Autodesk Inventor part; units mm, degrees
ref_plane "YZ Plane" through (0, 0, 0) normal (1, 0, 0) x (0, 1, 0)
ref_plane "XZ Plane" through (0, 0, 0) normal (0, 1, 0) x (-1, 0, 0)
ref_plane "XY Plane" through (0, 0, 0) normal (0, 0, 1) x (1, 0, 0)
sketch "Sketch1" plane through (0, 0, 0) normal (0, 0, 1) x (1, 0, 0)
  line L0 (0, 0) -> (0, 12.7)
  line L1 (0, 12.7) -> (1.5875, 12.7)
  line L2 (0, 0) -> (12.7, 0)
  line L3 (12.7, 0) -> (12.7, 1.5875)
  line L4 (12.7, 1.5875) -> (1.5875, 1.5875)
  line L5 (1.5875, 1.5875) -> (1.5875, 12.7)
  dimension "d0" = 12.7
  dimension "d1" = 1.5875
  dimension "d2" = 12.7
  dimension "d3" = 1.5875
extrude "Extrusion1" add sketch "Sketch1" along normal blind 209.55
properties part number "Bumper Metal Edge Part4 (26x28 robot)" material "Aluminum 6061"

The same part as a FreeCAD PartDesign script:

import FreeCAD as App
import Part
import Sketcher
from FreeCAD import Vector
Q = App.Units.Quantity

doc = App.newDocument("Part")
params = doc.addObject("Spreadsheet::Sheet", "Params")
for row, (alias, value) in enumerate([
    ("sketch1_width", "0.5 in"),
    ("sketch1_width2", "0.0625 in"),
    ("pad1_length", "8.25 in"),
], start=1):
    params.set(f"A{row}", alias)
    params.set(f"B{row}", "=" + value)
    params.setAlias(f"B{row}", alias)

body = doc.addObject("PartDesign::Body", "Body")

# Sketch on XY plane
sketch1 = body.newObject("Sketcher::SketchObject", "Sketch")
sketch1.AttachmentSupport = (doc.getObject("XY_Plane"), [""])
sketch1.MapMode = "FlatFace"
sketch1.addGeometry([
    Part.LineSegment(Vector(0, 12.7, 0), Vector(0, 0, 0)),  # 0
    Part.LineSegment(Vector(0, 0, 0), Vector(12.7, 0, 0)),  # 1
    Part.LineSegment(Vector(12.7, 0, 0), Vector(12.7, 1.6, 0)),  # 2
    Part.LineSegment(Vector(12.7, 1.6, 0), Vector(1.6, 1.6, 0)),  # 3
    Part.LineSegment(Vector(1.6, 1.6, 0), Vector(1.6, 12.7, 0)),  # 4
    Part.LineSegment(Vector(1.6, 12.7, 0), Vector(0, 12.7, 0)),  # 5
], False)
sketch1.addConstraint([
    Sketcher.Constraint("Coincident", 0, 2, 1, 1),
    Sketcher.Constraint("Coincident", 1, 2, 2, 1),
    Sketcher.Constraint("Coincident", 2, 2, 3, 1),
    Sketcher.Constraint("Coincident", 3, 2, 4, 1),
    Sketcher.Constraint("Coincident", 4, 2, 5, 1),
    Sketcher.Constraint("Coincident", 5, 2, 0, 1),
    Sketcher.Constraint("Vertical", 0),
    Sketcher.Constraint("Horizontal", 1),
    Sketcher.Constraint("Vertical", 2),
    Sketcher.Constraint("Horizontal", 3),
    Sketcher.Constraint("Vertical", 4),
    Sketcher.Constraint("Horizontal", 5),
    Sketcher.Constraint("Coincident", 0, 2, -1, 1),
    Sketcher.Constraint("Equal", 1, 0),
    Sketcher.Constraint("Equal", 5, 2),
    Sketcher.Constraint("DistanceX", 1, 1, 1, 2, Q("0.5 in")),
    Sketcher.Constraint("DistanceX", 5, 2, 5, 1, Q("0.0625 in")),
])
sketch1.setExpression("Constraints[15]", "Params.sketch1_width")
sketch1.setExpression("Constraints[16]", "Params.sketch1_width2")
pad1 = body.newObject("PartDesign::Pad", "Pad")
pad1.Profile = sketch1
pad1.setExpression("Length", "Params.pad1_length")

doc.recompute()
